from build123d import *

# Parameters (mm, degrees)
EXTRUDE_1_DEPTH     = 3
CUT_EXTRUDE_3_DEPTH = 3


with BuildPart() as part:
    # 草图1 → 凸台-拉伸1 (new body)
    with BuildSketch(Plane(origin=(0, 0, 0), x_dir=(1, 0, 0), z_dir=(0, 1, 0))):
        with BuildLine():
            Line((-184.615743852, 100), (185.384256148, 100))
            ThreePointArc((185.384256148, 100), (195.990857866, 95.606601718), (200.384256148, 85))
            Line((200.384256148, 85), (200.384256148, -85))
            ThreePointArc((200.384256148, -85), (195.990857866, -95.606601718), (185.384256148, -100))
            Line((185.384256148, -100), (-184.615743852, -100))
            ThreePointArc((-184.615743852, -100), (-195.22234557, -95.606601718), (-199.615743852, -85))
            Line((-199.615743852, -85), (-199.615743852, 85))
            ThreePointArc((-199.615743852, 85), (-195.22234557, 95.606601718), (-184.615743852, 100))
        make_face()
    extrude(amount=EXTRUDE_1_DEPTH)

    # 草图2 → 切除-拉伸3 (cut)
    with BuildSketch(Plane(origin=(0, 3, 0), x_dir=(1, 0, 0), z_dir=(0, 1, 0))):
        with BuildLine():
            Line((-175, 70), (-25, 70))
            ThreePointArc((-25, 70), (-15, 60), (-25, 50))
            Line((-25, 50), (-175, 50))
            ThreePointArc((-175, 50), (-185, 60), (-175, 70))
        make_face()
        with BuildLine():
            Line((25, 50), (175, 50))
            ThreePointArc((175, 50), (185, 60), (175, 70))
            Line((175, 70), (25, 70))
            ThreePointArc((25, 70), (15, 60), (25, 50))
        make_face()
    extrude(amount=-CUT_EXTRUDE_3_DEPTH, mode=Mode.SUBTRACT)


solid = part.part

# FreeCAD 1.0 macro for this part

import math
import FreeCAD as App
import Part
import Sketcher

V = App.Vector

doc = App.newDocument("Part")
params = doc.addObject("Spreadsheet::Sheet", "Params")
for row, (alias, value) in enumerate([
    ("sketch1_radius", "15 mm"),
    ("sketch1_width", "370 mm"),
    ("sketch1_height", "170 mm"),
    ("pad1_length", "3 mm"),
    ("sketch2_radius", "10 mm"),
    ("sketch2_width", "150 mm"),
    ("pocket1_length", "3 mm"),
], start=1):
    params.set(f"A{row}", alias)
    params.set(f"B{row}", "=" + value)
    params.setAlias(f"B{row}", alias)

body = doc.addObject("PartDesign::Body", "Body")

# Sketch on XZ plane
sketch1 = body.newObject("Sketcher::SketchObject", "Sketch")
sketch1.AttachmentSupport = (doc.getObject("XZ_Plane"), [""])
sketch1.MapMode = "FlatFace"
sketch1.addGeometry([
    Part.LineSegment(V(185, -100, 0), V(-185, -100, 0)),  # 0
    Part.ArcOfCircle(Part.Circle(V(-185, -85, 0), V(0, 0, 1), 15), math.radians(180), math.radians(270)),  # 1
    Part.LineSegment(V(-200, -85, 0), V(-200, 85, 0)),  # 2
    Part.ArcOfCircle(Part.Circle(V(-185, 85, 0), V(0, 0, 1), 15), math.radians(90), math.radians(180)),  # 3
    Part.LineSegment(V(-185, 100, 0), V(185, 100, 0)),  # 4
    Part.ArcOfCircle(Part.Circle(V(185, 85, 0), V(0, 0, 1), 15), math.radians(0), math.radians(90)),  # 5
    Part.LineSegment(V(200, 85, 0), V(200, -85, 0)),  # 6
    Part.ArcOfCircle(Part.Circle(V(185, -85, 0), V(0, 0, 1), 15), math.radians(-90), math.radians(0)),  # 7
], False)
sketch1.addConstraint([
    Sketcher.Constraint("Tangent", 0, 2, 1, 2),
    Sketcher.Constraint("Tangent", 1, 1, 2, 1),
    Sketcher.Constraint("Tangent", 2, 2, 3, 2),
    Sketcher.Constraint("Tangent", 3, 1, 4, 1),
    Sketcher.Constraint("Tangent", 4, 2, 5, 2),
    Sketcher.Constraint("Tangent", 5, 1, 6, 1),
    Sketcher.Constraint("Tangent", 6, 2, 7, 2),
    Sketcher.Constraint("Tangent", 7, 1, 0, 1),
    Sketcher.Constraint("Horizontal", 0),
    Sketcher.Constraint("Vertical", 2),
    Sketcher.Constraint("Horizontal", 4),
    Sketcher.Constraint("Vertical", 6),
    Sketcher.Constraint("Equal", 1, 3),
    Sketcher.Constraint("Equal", 3, 5),
    Sketcher.Constraint("Equal", 5, 7),
    Sketcher.Constraint("Radius", 1, 15.0),
    Sketcher.Constraint("DistanceX", 0, 2, 0, 1, 370.0),
    Sketcher.Constraint("DistanceY", 2, 1, 2, 2, 170.0),
    Sketcher.Constraint("DistanceY", 1, 3, -1, 1, 85.0),
    Sketcher.Constraint("DistanceX", 1, 3, -1, 1, 184.615744),
])
sketch1.setExpression("Constraints[15]", "Params.sketch1_radius")
sketch1.setExpression("Constraints[16]", "Params.sketch1_width")
sketch1.setExpression("Constraints[17]", "Params.sketch1_height")
pad1 = body.newObject("PartDesign::Pad", "Pad")
pad1.Profile = sketch1
pad1.setExpression("Length", "Params.pad1_length")
pad1.Reversed = True

# Sketch on XZ plane
sketch2 = body.newObject("Sketcher::SketchObject", "Sketch001")
sketch2.AttachmentSupport = (doc.getObject("XZ_Plane"), [""])
sketch2.MapMode = "FlatFace"
sketch2.AttachmentOffset = App.Placement(V(0, 0, -3), App.Rotation())
sketch2.addGeometry([
    Part.LineSegment(V(-25, -70, 0), V(-175, -70, 0)),  # 0
    Part.ArcOfCircle(Part.Circle(V(-175, -60, 0), V(0, 0, 1), 10), math.radians(90), math.radians(270)),  # 1
    Part.LineSegment(V(-175, -50, 0), V(-25, -50, 0)),  # 2
    Part.ArcOfCircle(Part.Circle(V(-25, -60, 0), V(0, 0, 1), 10), math.radians(-90), math.radians(90)),  # 3
    Part.LineSegment(V(25, -50, 0), V(175, -50, 0)),  # 4
    Part.ArcOfCircle(Part.Circle(V(175, -60, 0), V(0, 0, 1), 10), math.radians(-90), math.radians(90)),  # 5
    Part.LineSegment(V(175, -70, 0), V(25, -70, 0)),  # 6
    Part.ArcOfCircle(Part.Circle(V(25, -60, 0), V(0, 0, 1), 10), math.radians(90), math.radians(270)),  # 7
], False)
sketch2.addConstraint([
    Sketcher.Constraint("Tangent", 0, 2, 1, 2),
    Sketcher.Constraint("Tangent", 1, 1, 2, 1),
    Sketcher.Constraint("Tangent", 2, 2, 3, 2),
    Sketcher.Constraint("Tangent", 3, 1, 0, 1),
    Sketcher.Constraint("Tangent", 4, 2, 5, 2),
    Sketcher.Constraint("Tangent", 5, 1, 6, 1),
    Sketcher.Constraint("Tangent", 6, 2, 7, 2),
    Sketcher.Constraint("Tangent", 7, 1, 4, 1),
    Sketcher.Constraint("Horizontal", 0),
    Sketcher.Constraint("Horizontal", 2),
    Sketcher.Constraint("Horizontal", 4),
    Sketcher.Constraint("Horizontal", 6),
    Sketcher.Constraint("Equal", 3, 5),
    Sketcher.Constraint("Symmetric", 1, 3, 5, 3, -2),
    Sketcher.Constraint("Equal", 2, 4),
    Sketcher.Constraint("Radius", 1, 10.0),
    Sketcher.Constraint("DistanceX", 0, 2, 0, 1, 150.0),
    Sketcher.Constraint("DistanceX", 1, 3, -1, 1, 175.0),
    Sketcher.Constraint("DistanceY", 1, 3, -1, 1, 60.0),
])
sketch2.setExpression("Constraints[15]", "Params.sketch2_radius")
sketch2.setExpression("Constraints[16]", "Params.sketch2_width")
pocket1 = body.newObject("PartDesign::Pocket", "Pocket")
pocket1.Profile = sketch2
pocket1.setExpression("Length", "Params.pocket1_length")
pocket1.Reversed = True

doc.recompute()
